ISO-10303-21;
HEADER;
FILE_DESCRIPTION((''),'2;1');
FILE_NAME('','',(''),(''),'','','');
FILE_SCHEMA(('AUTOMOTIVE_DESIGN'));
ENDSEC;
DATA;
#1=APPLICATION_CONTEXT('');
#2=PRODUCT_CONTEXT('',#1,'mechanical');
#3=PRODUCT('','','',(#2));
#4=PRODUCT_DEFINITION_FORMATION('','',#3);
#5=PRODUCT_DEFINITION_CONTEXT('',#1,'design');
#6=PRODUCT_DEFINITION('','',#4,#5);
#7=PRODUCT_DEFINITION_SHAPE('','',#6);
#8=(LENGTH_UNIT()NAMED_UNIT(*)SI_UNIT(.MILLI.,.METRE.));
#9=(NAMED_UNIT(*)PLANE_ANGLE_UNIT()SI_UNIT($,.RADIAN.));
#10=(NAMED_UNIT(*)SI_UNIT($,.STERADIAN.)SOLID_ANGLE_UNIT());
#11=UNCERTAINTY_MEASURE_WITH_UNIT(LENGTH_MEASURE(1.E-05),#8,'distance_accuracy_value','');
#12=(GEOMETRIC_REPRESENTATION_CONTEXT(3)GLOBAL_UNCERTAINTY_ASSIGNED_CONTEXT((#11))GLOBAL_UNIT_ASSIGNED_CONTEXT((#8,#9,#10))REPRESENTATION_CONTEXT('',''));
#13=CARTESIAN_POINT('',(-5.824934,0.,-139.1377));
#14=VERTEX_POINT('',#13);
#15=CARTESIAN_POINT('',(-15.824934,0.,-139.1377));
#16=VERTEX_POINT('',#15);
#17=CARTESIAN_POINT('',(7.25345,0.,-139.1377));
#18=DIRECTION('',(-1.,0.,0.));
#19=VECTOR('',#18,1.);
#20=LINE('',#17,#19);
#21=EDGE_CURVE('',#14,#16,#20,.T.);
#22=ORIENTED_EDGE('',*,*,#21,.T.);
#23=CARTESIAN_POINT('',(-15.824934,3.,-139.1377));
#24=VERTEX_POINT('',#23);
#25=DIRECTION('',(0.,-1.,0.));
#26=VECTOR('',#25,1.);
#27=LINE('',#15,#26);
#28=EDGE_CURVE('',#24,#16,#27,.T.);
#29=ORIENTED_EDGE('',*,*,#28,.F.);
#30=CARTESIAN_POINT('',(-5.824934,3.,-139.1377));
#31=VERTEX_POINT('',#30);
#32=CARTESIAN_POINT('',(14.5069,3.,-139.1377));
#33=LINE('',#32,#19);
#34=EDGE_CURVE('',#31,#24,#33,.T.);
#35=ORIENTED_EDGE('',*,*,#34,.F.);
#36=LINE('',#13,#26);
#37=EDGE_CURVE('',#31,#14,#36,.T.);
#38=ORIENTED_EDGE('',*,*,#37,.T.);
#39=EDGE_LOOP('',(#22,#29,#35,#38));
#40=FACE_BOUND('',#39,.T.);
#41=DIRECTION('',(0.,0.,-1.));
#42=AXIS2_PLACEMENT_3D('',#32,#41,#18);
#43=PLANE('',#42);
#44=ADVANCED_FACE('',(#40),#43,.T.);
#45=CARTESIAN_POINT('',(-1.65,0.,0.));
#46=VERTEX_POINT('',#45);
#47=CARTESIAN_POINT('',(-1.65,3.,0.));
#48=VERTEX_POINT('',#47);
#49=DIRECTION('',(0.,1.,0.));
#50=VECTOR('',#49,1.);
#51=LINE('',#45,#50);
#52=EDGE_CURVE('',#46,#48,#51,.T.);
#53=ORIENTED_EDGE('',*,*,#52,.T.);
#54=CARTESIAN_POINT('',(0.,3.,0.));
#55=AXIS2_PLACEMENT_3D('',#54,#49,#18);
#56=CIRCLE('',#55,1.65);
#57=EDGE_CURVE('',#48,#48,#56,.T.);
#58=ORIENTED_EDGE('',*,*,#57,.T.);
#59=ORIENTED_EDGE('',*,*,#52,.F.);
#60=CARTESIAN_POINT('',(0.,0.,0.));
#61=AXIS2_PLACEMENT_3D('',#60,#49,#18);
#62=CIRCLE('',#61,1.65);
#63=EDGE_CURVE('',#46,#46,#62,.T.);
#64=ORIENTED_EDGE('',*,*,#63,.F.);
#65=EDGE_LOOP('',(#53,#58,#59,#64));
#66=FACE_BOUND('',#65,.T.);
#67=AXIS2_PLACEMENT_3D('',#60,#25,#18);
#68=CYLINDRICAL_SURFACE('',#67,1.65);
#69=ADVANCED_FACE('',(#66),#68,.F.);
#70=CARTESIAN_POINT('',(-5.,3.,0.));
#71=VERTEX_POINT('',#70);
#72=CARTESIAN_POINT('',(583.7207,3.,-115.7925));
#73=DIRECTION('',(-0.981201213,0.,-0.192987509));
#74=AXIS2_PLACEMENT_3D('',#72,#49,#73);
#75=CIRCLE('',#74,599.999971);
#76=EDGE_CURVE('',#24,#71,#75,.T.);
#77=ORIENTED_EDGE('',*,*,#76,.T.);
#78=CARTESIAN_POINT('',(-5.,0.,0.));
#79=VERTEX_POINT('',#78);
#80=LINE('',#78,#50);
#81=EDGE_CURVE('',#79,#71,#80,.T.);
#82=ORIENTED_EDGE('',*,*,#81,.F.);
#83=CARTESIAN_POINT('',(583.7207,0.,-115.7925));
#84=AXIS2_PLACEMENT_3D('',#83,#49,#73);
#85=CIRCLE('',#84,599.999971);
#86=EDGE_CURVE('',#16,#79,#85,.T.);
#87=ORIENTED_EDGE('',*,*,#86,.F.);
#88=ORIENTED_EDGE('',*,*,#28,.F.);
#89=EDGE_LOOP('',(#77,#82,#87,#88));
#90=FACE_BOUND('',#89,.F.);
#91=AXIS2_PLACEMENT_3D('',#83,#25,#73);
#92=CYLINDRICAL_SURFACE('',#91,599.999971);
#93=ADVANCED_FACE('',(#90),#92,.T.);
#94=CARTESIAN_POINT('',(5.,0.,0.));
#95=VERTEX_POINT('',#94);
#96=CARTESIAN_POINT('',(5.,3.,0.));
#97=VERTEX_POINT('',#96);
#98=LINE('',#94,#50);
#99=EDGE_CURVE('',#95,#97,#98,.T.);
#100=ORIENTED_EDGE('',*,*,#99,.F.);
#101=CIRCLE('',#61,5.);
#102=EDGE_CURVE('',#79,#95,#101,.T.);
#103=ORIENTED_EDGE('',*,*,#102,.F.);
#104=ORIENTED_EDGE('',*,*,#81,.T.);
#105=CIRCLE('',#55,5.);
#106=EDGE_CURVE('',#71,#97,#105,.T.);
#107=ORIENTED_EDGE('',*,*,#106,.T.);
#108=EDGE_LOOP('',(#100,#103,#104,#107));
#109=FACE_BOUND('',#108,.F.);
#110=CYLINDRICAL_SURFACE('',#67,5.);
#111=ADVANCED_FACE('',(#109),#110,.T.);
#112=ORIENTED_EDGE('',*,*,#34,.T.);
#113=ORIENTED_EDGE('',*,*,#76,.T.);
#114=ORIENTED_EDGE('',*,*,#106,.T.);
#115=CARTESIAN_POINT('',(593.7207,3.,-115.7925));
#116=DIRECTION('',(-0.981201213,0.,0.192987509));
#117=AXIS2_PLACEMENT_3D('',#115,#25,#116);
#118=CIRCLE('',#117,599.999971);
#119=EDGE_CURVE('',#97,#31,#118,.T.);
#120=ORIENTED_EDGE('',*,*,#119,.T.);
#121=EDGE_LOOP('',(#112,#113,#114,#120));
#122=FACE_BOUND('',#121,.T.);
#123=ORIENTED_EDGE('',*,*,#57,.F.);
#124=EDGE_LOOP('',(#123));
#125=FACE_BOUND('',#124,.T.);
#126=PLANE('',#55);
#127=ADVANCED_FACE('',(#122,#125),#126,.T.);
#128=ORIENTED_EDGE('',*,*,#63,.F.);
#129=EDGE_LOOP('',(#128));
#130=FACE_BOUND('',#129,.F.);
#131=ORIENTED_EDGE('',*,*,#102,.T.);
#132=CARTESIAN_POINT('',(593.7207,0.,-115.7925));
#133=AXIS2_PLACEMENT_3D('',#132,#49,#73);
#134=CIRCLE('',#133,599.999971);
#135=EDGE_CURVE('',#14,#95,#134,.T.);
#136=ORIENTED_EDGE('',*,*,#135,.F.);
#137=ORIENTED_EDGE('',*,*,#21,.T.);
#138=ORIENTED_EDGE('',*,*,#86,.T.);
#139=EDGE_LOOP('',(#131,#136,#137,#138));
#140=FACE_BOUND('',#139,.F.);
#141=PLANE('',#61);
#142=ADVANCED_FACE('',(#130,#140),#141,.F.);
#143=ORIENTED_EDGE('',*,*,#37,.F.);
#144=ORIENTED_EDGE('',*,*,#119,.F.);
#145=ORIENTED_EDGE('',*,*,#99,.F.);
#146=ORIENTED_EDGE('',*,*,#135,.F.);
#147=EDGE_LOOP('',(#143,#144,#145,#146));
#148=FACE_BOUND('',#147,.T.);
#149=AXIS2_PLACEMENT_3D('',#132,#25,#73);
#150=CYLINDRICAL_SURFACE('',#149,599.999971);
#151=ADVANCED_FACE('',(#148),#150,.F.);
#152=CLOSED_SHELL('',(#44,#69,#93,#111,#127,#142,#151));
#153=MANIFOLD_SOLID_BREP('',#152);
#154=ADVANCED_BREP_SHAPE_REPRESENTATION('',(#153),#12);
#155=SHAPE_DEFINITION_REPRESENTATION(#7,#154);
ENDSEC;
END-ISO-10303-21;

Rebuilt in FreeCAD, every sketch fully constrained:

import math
import FreeCAD as App
import Part
import Sketcher
Q = App.Units.Quantity


def add_polygon(sketch, points):
    """Adds a closed chain of lines whose ends are joined by coincident constraints."""
    first, n = sketch.GeometryCount, len(points)
    for a, b in zip(points, points[1:] + points[:1]):
        sketch.addGeometry(Part.LineSegment(App.Vector(*a, 0), App.Vector(*b, 0)), False)
    for i in range(n):
        sketch.addConstraint(Sketcher.Constraint("Coincident", first + i, 2, first + (i + 1) % n, 1))

doc = App.newDocument("Part")
params = doc.addObject("Spreadsheet::Sheet", "Params")
for row, (alias, value) in enumerate([
    ("sketch1_radius", "600 mm"),
    ("sketch1_radius2", "5 mm"),
    ("sketch1_diameter", "3.3 mm"),
    ("pad1_length", "3 mm"),
    ("pocket1_length", "10 mm"),
], start=1):
    params.set(f"A{row}", alias)
    params.set(f"B{row}", "=" + value)
    params.setAlias(f"B{row}", alias)

body = doc.addObject("PartDesign::Body", "Body")

# Sketch on XZ plane
sketch1 = body.newObject("Sketcher::SketchObject", "Sketch")
sketch1.AttachmentSupport = (doc.getObject("XZ_Plane"), [""])
sketch1.MapMode = "FlatFace"
sketch1.addGeometry(Part.LineSegment(App.Vector(-5, -289, 0), App.Vector(-5, -231.6, 0)), False)
sketch1.addGeometry(Part.ArcOfCircle(Part.Circle(App.Vector(583.7, -115.8, 0), App.Vector(0, 0, 1), 600), math.radians(169), math.radians(191)), False)
sketch1.addGeometry(Part.ArcOfCircle(Part.Circle(App.Vector(0, 0, 0), App.Vector(0, 0, 1), 5), math.radians(0), math.radians(180)), False)
sketch1.addGeometry(Part.ArcOfCircle(Part.Circle(App.Vector(593.7, -115.8, 0), App.Vector(0, 0, 1), 600), math.radians(169), math.radians(191)), False)
sketch1.addGeometry(Part.LineSegment(App.Vector(5, -231.6, 0), App.Vector(5, -289, 0)), False)
sketch1.addGeometry(Part.ArcOfCircle(Part.Circle(App.Vector(0, -289, 0), App.Vector(0, 0, 1), 5), math.radians(180), math.radians(360)), False)
sketch1.addGeometry(Part.Circle(App.Vector(0, -289, 0), App.Vector(0, 0, 1), 1.6), False)
sketch1.addGeometry(Part.Circle(App.Vector(0, -231.6, 0), App.Vector(0, 0, 1), 1.6), False)
sketch1.addGeometry(Part.Circle(App.Vector(0, 0, 0), App.Vector(0, 0, 1), 1.6), False)
sketch1.addConstraint(Sketcher.Constraint("Coincident", 0, 2, 1, 2))
sketch1.addConstraint(Sketcher.Constraint("Coincident", 1, 1, 2, 2))
sketch1.addConstraint(Sketcher.Constraint("Coincident", 2, 1, 3, 1))
sketch1.addConstraint(Sketcher.Constraint("Coincident", 3, 2, 4, 1))
sketch1.addConstraint(Sketcher.Constraint("Tangent", 4, 2, 5, 2))
sketch1.addConstraint(Sketcher.Constraint("Tangent", 5, 1, 0, 1))
sketch1.addConstraint(Sketcher.Constraint("Vertical", 0))
sketch1.addConstraint(Sketcher.Constraint("Vertical", 4))
sketch1.addConstraint(Sketcher.Constraint("Coincident", 2, 3, -1, 1))
sketch1.addConstraint(Sketcher.Constraint("Coincident", 8, 3, -1, 1))
sketch1.addConstraint(Sketcher.Constraint("Coincident", 6, 3, 5, 3))
sketch1.addConstraint(Sketcher.Constraint("Equal", 1, 3))
sketch1.addConstraint(Sketcher.Constraint("Equal", 2, 5))
sketch1.addConstraint(Sketcher.Constraint("Equal", 6, 7))
sketch1.addConstraint(Sketcher.Constraint("Equal", 7, 8))
sketch1.addConstraint(Sketcher.Constraint("Symmetric", 0, 2, 3, 2, -2))
sketch1.addConstraint(Sketcher.Constraint("PointOnObject", 7, 3, -2))
sketch1.addConstraint(Sketcher.Constraint("PointOnObject", 1, 1, -1))
sketch1.addConstraint(Sketcher.Constraint("PointOnObject", 2, 1, -1))
sketch1.addConstraint(Sketcher.Constraint("Horizontal", 7, 3, 0, 2))
sketch1.addConstraint(Sketcher.Constraint("Radius", 1, Q("600 mm")))
sketch1.addConstraint(Sketcher.Constraint("Radius", 2, Q("5 mm")))
sketch1.addConstraint(Sketcher.Constraint("Diameter", 6, Q("3.3 mm")))
sketch1.addConstraint(Sketcher.Constraint("DistanceY", 5, 3, -1, 1, Q("288.984 mm")))
sketch1.addConstraint(Sketcher.Constraint("DistanceY", 7, 3, -1, 1, Q("231.585 mm")))
sketch1.setExpression("Constraints[20]", "Params.sketch1_radius")
sketch1.setExpression("Constraints[21]", "Params.sketch1_radius2")
sketch1.setExpression("Constraints[22]", "Params.sketch1_diameter")
pad1 = body.newObject("PartDesign::Pad", "Pad")
pad1.Profile = sketch1
pad1.setExpression("Length", "Params.pad1_length")
pad1.Reversed = True

# Sketch on XZ plane
sketch2 = body.newObject("Sketcher::SketchObject", "Sketch001")
sketch2.AttachmentSupport = (doc.getObject("XZ_Plane"), [""])
sketch2.MapMode = "FlatFace"
sketch2.AttachmentOffset = App.Placement(App.Vector(0, 0, -3), App.Rotation())
add_polygon(sketch2, [(15, -299), (-28, -299), (-28, -139), (15, -139)])  # lines 0-3
sketch2.addConstraint(Sketcher.Constraint("Horizontal", 0))
sketch2.addConstraint(Sketcher.Constraint("Vertical", 1))
sketch2.addConstraint(Sketcher.Constraint("Horizontal", 2))
sketch2.addConstraint(Sketcher.Constraint("Vertical", 3))
sketch2.addConstraint(Sketcher.Constraint("DistanceX", 0, 2, 0, 1, Q("42.2178 mm")))
sketch2.addConstraint(Sketcher.Constraint("DistanceY", 1, 1, 1, 2, Q("160.3008 mm")))
sketch2.addConstraint(Sketcher.Constraint("DistanceX", 0, 2, -1, 1, Q("27.711 mm")))
sketch2.addConstraint(Sketcher.Constraint("DistanceY", 0, 2, -1, 1, Q("299.4385 mm")))
pocket1 = body.newObject("PartDesign::Pocket", "Pocket")
pocket1.Profile = sketch2
pocket1.setExpression("Length", "Params.pocket1_length")
pocket1.Reversed = True

doc.recompute()
